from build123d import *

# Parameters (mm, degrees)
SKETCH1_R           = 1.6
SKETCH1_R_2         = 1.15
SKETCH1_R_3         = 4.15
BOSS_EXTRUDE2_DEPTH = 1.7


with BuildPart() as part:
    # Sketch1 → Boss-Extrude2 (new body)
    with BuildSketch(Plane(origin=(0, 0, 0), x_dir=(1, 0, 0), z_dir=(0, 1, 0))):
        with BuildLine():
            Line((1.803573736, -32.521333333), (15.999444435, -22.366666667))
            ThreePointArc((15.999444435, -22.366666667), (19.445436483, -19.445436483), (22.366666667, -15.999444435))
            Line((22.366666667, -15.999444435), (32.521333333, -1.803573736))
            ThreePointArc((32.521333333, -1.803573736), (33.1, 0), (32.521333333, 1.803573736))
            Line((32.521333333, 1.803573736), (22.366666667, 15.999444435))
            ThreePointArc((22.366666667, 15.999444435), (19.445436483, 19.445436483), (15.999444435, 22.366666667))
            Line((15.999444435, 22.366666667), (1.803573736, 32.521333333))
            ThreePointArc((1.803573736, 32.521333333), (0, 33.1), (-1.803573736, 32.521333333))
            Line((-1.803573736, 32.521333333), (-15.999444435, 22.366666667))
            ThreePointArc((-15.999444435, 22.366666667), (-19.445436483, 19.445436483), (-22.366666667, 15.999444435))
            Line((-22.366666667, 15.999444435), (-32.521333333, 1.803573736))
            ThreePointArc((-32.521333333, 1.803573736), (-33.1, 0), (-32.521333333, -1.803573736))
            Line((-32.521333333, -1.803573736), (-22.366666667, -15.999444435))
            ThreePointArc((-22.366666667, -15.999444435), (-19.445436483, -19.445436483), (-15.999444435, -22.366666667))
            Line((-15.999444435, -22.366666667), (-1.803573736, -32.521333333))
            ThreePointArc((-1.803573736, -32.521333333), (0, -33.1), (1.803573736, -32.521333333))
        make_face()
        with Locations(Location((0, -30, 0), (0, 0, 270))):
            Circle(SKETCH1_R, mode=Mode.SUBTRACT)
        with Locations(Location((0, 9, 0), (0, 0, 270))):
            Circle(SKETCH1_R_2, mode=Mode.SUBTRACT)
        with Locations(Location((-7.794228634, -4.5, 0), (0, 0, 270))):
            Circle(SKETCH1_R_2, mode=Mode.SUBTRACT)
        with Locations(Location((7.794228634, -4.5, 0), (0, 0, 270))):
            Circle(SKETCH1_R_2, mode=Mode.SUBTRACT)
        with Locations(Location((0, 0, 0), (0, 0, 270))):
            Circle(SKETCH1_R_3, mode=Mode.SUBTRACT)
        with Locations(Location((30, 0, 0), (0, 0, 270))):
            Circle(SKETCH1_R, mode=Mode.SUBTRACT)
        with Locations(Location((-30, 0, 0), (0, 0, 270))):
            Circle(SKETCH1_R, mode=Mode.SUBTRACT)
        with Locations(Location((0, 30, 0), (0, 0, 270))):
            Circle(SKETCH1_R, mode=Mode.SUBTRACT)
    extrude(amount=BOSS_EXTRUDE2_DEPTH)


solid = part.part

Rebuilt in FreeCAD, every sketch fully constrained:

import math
import FreeCAD as App
import Part
import Sketcher

V = App.Vector
Q = App.Units.Quantity

doc = App.newDocument("Part")
body = doc.addObject("PartDesign::Body", "Body")

sketch1 = body.newObject("Sketcher::SketchObject", "Sketch")
sketch1.AttachmentSupport = (doc.getObject("XZ_Plane"), [""])
sketch1.MapMode = "FlatFace"
sketch1.addGeometry([
    Part.LineSegment(V(1.8, 32.5, 0), V(16, 22.4, 0)),
    Part.ArcOfCircle(Part.Circle(V(0, 0, 0), V(0, 0, 1), 27.5), math.radians(35.58), math.radians(54.42)),
    Part.LineSegment(V(22.4, 16, 0), V(32.5, 1.8, 0)),
    Part.ArcOfCircle(Part.Circle(V(30, 0, 0), V(0, 0, 1), 3.1), math.radians(-36), math.radians(36)),
    Part.LineSegment(V(32.5, -1.8, 0), V(22.4, -16, 0)),
    Part.ArcOfCircle(Part.Circle(V(0, 0, 0), V(0, 0, 1), 27.5), math.radians(-54.42), math.radians(-35.58)),
    Part.LineSegment(V(16, -22.4, 0), V(1.8, -32.5, 0)),
    Part.ArcOfCircle(Part.Circle(V(0, -30, 0), V(0, 0, 1), 3.1), math.radians(-126), math.radians(-54)),
    Part.LineSegment(V(-1.8, -32.5, 0), V(-16, -22.4, 0)),
    Part.ArcOfCircle(Part.Circle(V(0, 0, 0), V(0, 0, 1), 27.5), math.radians(-144.42), math.radians(-125.58)),
    Part.LineSegment(V(-22.4, -16, 0), V(-32.5, -1.8, 0)),
    Part.ArcOfCircle(Part.Circle(V(-30, 0, 0), V(0, 0, 1), 3.1), math.radians(144), math.radians(216)),
    Part.LineSegment(V(-32.5, 1.8, 0), V(-22.4, 16, 0)),
    Part.ArcOfCircle(Part.Circle(V(0, 0, 0), V(0, 0, 1), 27.5), math.radians(125.58), math.radians(144.42)),
    Part.LineSegment(V(-16, 22.4, 0), V(-1.8, 32.5, 0)),
    Part.ArcOfCircle(Part.Circle(V(0, 30, 0), V(0, 0, 1), 3.1), math.radians(54), math.radians(126)),
    Part.Circle(V(0, 30, 0), V(0, 0, 1), 1.6),
    Part.Circle(V(-30, 0, 0), V(0, 0, 1), 1.6),
    Part.Circle(V(-7.8, 4.5, 0), V(0, 0, 1), 1.1),
    Part.Circle(V(0, 0, 0), V(0, 0, 1), 4.2),
    Part.Circle(V(7.8, 4.5, 0), V(0, 0, 1), 1.1),
    Part.Circle(V(30, 0, 0), V(0, 0, 1), 1.6),
    Part.Circle(V(0, -9, 0), V(0, 0, 1), 1.1),
    Part.Circle(V(0, -30, 0), V(0, 0, 1), 1.6),
], False)
sketch1.addConstraint([
    Sketcher.Constraint("Tangent", 0, 2, 1, 2),
    Sketcher.Constraint("Tangent", 1, 1, 2, 1),
    Sketcher.Constraint("Tangent", 2, 2, 3, 2),
    Sketcher.Constraint("Tangent", 3, 1, 4, 1),
    Sketcher.Constraint("Tangent", 4, 2, 5, 2),
    Sketcher.Constraint("Tangent", 5, 1, 6, 1),
    Sketcher.Constraint("Tangent", 6, 2, 7, 2),
    Sketcher.Constraint("Tangent", 7, 1, 8, 1),
    Sketcher.Constraint("Tangent", 8, 2, 9, 2),
    Sketcher.Constraint("Tangent", 9, 1, 10, 1),
    Sketcher.Constraint("Tangent", 10, 2, 11, 2),
    Sketcher.Constraint("Tangent", 11, 1, 12, 1),
    Sketcher.Constraint("Tangent", 12, 2, 13, 2),
    Sketcher.Constraint("Tangent", 13, 1, 14, 1),
    Sketcher.Constraint("Tangent", 14, 2, 15, 2),
    Sketcher.Constraint("Tangent", 15, 1, 0, 1),
    Sketcher.Constraint("Coincident", 1, 3, -1, 1),
    Sketcher.Constraint("Coincident", 5, 3, -1, 1),
    Sketcher.Constraint("Coincident", 9, 3, -1, 1),
    Sketcher.Constraint("Coincident", 13, 3, -1, 1),
    Sketcher.Constraint("Coincident", 19, 3, -1, 1),
    Sketcher.Constraint("Coincident", 16, 3, 15, 3),
    Sketcher.Constraint("Coincident", 17, 3, 11, 3),
    Sketcher.Constraint("Coincident", 21, 3, 3, 3),
    Sketcher.Constraint("Coincident", 23, 3, 7, 3),
    Sketcher.Constraint("Equal", 1, 5),
    Sketcher.Constraint("Equal", 3, 7),
    Sketcher.Constraint("Equal", 5, 9),
    Sketcher.Constraint("Equal", 7, 11),
    Sketcher.Constraint("Equal", 9, 13),
    Sketcher.Constraint("Equal", 11, 15),
    Sketcher.Constraint("Equal", 16, 17),
    Sketcher.Constraint("Equal", 18, 20),
    Sketcher.Constraint("Equal", 17, 21),
    Sketcher.Constraint("Equal", 20, 22),
    Sketcher.Constraint("Equal", 21, 23),
    Sketcher.Constraint("Symmetric", 3, 3, 11, 3, -1, 1),
    Sketcher.Constraint("Symmetric", 7, 3, 15, 3, -1, 1),
    Sketcher.Constraint("Symmetric", 18, 3, 20, 3, -2),
    Sketcher.Constraint("PointOnObject", 3, 3, -1),
    Sketcher.Constraint("PointOnObject", 7, 3, -2),
    Sketcher.Constraint("PointOnObject", 22, 3, -2),
    Sketcher.Constraint("Perpendicular", 0, 4),
    Sketcher.Constraint("Diameter", 16, Q("3.2 mm")),
    Sketcher.Constraint("Diameter", 18, Q("2.3 mm")),
    Sketcher.Constraint("Diameter", 19, Q("8.3 mm")),
    Sketcher.Constraint("Radius", 1, Q("27.5 mm")),
    Sketcher.Constraint("Radius", 3, Q("3.1 mm")),
    Sketcher.Constraint("DistanceX", -1, 1, 3, 3, Q("30 mm")),
    Sketcher.Constraint("DistanceY", 22, 3, -1, 1, Q("9 mm")),
    Sketcher.Constraint("DistanceY", -1, 1, 18, 3, Q("4.5 mm")),
    Sketcher.Constraint("DistanceX", 18, 3, -1, 1, Q("7.794229 mm")),
])
pad1 = body.newObject("PartDesign::Pad", "Pad")
pad1.Profile = sketch1
pad1.Length = 1.7
pad1.Reversed = True

doc.recompute()
